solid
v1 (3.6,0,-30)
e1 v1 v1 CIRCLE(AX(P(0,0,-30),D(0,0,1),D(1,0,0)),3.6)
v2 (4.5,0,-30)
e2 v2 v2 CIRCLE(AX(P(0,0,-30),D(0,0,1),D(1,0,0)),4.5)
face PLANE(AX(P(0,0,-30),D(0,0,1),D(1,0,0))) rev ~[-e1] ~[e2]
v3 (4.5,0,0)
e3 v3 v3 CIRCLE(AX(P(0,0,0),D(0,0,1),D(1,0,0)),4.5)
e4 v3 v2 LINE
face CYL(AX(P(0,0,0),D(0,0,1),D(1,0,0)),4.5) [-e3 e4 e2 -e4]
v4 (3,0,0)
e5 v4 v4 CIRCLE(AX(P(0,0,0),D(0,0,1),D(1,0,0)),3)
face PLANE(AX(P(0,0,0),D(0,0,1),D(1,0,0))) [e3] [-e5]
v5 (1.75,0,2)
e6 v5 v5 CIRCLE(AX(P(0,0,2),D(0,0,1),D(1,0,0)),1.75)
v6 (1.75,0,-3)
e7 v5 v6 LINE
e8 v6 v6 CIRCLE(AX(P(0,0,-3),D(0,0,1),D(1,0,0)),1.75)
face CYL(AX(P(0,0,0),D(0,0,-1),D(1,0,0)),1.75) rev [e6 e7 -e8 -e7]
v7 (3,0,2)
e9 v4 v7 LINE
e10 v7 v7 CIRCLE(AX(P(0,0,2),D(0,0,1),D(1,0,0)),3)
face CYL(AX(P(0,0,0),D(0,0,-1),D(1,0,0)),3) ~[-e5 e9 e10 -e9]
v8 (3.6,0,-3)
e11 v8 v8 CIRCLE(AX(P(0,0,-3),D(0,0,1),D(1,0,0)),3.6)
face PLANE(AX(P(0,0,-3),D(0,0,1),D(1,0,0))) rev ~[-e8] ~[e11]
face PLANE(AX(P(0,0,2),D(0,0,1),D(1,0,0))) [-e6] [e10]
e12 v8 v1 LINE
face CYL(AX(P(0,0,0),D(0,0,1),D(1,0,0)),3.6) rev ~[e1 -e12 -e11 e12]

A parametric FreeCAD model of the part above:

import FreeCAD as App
import Part
import Sketcher

doc = App.newDocument("Part")
body = doc.addObject("PartDesign::Body", "Body")

# Sketch on XY plane
sketch1 = body.newObject("Sketcher::SketchObject", "Sketch")
sketch1.AttachmentSupport = (doc.getObject("XY_Plane"), [""])
sketch1.MapMode = "FlatFace"
sketch1.addGeometry(Part.Circle(App.Vector(0, 0, 0), App.Vector(0, 0, 1), 4.5), False)
sketch1.addGeometry(Part.Circle(App.Vector(0, 0, 0), App.Vector(0, 0, 1), 3.6), False)
sketch1.addConstraint(Sketcher.Constraint("Coincident", 0, 3, -1, 1))
sketch1.addConstraint(Sketcher.Constraint("Coincident", 1, 3, -1, 1))
sketch1.addConstraint(Sketcher.Constraint("Diameter", 0, 9.0))
sketch1.addConstraint(Sketcher.Constraint("Diameter", 1, 7.2))
pad1 = body.newObject("PartDesign::Pad", "Pad")
pad1.Profile = sketch1
pad1.Length = 30
pad1.Reversed = True

# Sketch on XY plane
sketch2 = body.newObject("Sketcher::SketchObject", "Sketch001")
sketch2.AttachmentSupport = (doc.getObject("XY_Plane"), [""])
sketch2.MapMode = "FlatFace"
sketch2.addGeometry(Part.Circle(App.Vector(0, 0, 0), App.Vector(0, 0, 1), 3.6), False)
sketch2.addGeometry(Part.Circle(App.Vector(0, 0, 0), App.Vector(0, 0, 1), 1.75), False)
sketch2.addConstraint(Sketcher.Constraint("Coincident", 0, 3, -1, 1))
sketch2.addConstraint(Sketcher.Constraint("Coincident", 1, 3, -1, 1))
sketch2.addConstraint(Sketcher.Constraint("Diameter", 0, 7.2))
sketch2.addConstraint(Sketcher.Constraint("Diameter", 1, 3.5))
pad2 = body.newObject("PartDesign::Pad", "Pad001")
pad2.Profile = sketch2
pad2.Length = 3
pad2.Reversed = True

# Sketch on XY plane
sketch3 = body.newObject("Sketcher::SketchObject", "Sketch002")
sketch3.AttachmentSupport = (doc.getObject("XY_Plane"), [""])
sketch3.MapMode = "FlatFace"
sketch3.addGeometry(Part.Circle(App.Vector(0, 0, 0), App.Vector(0, 0, 1), 3), False)
sketch3.addGeometry(Part.Circle(App.Vector(0, 0, 0), App.Vector(0, 0, 1), 1.75), False)
sketch3.addConstraint(Sketcher.Constraint("Coincident", 0, 3, -1, 1))
sketch3.addConstraint(Sketcher.Constraint("Coincident", 1, 3, -1, 1))
sketch3.addConstraint(Sketcher.Constraint("Diameter", 0, 6.0))
sketch3.addConstraint(Sketcher.Constraint("Diameter", 1, 3.5))
pad3 = body.newObject("PartDesign::Pad", "Pad002")
pad3.Profile = sketch3
pad3.Length = 2

doc.recompute()
